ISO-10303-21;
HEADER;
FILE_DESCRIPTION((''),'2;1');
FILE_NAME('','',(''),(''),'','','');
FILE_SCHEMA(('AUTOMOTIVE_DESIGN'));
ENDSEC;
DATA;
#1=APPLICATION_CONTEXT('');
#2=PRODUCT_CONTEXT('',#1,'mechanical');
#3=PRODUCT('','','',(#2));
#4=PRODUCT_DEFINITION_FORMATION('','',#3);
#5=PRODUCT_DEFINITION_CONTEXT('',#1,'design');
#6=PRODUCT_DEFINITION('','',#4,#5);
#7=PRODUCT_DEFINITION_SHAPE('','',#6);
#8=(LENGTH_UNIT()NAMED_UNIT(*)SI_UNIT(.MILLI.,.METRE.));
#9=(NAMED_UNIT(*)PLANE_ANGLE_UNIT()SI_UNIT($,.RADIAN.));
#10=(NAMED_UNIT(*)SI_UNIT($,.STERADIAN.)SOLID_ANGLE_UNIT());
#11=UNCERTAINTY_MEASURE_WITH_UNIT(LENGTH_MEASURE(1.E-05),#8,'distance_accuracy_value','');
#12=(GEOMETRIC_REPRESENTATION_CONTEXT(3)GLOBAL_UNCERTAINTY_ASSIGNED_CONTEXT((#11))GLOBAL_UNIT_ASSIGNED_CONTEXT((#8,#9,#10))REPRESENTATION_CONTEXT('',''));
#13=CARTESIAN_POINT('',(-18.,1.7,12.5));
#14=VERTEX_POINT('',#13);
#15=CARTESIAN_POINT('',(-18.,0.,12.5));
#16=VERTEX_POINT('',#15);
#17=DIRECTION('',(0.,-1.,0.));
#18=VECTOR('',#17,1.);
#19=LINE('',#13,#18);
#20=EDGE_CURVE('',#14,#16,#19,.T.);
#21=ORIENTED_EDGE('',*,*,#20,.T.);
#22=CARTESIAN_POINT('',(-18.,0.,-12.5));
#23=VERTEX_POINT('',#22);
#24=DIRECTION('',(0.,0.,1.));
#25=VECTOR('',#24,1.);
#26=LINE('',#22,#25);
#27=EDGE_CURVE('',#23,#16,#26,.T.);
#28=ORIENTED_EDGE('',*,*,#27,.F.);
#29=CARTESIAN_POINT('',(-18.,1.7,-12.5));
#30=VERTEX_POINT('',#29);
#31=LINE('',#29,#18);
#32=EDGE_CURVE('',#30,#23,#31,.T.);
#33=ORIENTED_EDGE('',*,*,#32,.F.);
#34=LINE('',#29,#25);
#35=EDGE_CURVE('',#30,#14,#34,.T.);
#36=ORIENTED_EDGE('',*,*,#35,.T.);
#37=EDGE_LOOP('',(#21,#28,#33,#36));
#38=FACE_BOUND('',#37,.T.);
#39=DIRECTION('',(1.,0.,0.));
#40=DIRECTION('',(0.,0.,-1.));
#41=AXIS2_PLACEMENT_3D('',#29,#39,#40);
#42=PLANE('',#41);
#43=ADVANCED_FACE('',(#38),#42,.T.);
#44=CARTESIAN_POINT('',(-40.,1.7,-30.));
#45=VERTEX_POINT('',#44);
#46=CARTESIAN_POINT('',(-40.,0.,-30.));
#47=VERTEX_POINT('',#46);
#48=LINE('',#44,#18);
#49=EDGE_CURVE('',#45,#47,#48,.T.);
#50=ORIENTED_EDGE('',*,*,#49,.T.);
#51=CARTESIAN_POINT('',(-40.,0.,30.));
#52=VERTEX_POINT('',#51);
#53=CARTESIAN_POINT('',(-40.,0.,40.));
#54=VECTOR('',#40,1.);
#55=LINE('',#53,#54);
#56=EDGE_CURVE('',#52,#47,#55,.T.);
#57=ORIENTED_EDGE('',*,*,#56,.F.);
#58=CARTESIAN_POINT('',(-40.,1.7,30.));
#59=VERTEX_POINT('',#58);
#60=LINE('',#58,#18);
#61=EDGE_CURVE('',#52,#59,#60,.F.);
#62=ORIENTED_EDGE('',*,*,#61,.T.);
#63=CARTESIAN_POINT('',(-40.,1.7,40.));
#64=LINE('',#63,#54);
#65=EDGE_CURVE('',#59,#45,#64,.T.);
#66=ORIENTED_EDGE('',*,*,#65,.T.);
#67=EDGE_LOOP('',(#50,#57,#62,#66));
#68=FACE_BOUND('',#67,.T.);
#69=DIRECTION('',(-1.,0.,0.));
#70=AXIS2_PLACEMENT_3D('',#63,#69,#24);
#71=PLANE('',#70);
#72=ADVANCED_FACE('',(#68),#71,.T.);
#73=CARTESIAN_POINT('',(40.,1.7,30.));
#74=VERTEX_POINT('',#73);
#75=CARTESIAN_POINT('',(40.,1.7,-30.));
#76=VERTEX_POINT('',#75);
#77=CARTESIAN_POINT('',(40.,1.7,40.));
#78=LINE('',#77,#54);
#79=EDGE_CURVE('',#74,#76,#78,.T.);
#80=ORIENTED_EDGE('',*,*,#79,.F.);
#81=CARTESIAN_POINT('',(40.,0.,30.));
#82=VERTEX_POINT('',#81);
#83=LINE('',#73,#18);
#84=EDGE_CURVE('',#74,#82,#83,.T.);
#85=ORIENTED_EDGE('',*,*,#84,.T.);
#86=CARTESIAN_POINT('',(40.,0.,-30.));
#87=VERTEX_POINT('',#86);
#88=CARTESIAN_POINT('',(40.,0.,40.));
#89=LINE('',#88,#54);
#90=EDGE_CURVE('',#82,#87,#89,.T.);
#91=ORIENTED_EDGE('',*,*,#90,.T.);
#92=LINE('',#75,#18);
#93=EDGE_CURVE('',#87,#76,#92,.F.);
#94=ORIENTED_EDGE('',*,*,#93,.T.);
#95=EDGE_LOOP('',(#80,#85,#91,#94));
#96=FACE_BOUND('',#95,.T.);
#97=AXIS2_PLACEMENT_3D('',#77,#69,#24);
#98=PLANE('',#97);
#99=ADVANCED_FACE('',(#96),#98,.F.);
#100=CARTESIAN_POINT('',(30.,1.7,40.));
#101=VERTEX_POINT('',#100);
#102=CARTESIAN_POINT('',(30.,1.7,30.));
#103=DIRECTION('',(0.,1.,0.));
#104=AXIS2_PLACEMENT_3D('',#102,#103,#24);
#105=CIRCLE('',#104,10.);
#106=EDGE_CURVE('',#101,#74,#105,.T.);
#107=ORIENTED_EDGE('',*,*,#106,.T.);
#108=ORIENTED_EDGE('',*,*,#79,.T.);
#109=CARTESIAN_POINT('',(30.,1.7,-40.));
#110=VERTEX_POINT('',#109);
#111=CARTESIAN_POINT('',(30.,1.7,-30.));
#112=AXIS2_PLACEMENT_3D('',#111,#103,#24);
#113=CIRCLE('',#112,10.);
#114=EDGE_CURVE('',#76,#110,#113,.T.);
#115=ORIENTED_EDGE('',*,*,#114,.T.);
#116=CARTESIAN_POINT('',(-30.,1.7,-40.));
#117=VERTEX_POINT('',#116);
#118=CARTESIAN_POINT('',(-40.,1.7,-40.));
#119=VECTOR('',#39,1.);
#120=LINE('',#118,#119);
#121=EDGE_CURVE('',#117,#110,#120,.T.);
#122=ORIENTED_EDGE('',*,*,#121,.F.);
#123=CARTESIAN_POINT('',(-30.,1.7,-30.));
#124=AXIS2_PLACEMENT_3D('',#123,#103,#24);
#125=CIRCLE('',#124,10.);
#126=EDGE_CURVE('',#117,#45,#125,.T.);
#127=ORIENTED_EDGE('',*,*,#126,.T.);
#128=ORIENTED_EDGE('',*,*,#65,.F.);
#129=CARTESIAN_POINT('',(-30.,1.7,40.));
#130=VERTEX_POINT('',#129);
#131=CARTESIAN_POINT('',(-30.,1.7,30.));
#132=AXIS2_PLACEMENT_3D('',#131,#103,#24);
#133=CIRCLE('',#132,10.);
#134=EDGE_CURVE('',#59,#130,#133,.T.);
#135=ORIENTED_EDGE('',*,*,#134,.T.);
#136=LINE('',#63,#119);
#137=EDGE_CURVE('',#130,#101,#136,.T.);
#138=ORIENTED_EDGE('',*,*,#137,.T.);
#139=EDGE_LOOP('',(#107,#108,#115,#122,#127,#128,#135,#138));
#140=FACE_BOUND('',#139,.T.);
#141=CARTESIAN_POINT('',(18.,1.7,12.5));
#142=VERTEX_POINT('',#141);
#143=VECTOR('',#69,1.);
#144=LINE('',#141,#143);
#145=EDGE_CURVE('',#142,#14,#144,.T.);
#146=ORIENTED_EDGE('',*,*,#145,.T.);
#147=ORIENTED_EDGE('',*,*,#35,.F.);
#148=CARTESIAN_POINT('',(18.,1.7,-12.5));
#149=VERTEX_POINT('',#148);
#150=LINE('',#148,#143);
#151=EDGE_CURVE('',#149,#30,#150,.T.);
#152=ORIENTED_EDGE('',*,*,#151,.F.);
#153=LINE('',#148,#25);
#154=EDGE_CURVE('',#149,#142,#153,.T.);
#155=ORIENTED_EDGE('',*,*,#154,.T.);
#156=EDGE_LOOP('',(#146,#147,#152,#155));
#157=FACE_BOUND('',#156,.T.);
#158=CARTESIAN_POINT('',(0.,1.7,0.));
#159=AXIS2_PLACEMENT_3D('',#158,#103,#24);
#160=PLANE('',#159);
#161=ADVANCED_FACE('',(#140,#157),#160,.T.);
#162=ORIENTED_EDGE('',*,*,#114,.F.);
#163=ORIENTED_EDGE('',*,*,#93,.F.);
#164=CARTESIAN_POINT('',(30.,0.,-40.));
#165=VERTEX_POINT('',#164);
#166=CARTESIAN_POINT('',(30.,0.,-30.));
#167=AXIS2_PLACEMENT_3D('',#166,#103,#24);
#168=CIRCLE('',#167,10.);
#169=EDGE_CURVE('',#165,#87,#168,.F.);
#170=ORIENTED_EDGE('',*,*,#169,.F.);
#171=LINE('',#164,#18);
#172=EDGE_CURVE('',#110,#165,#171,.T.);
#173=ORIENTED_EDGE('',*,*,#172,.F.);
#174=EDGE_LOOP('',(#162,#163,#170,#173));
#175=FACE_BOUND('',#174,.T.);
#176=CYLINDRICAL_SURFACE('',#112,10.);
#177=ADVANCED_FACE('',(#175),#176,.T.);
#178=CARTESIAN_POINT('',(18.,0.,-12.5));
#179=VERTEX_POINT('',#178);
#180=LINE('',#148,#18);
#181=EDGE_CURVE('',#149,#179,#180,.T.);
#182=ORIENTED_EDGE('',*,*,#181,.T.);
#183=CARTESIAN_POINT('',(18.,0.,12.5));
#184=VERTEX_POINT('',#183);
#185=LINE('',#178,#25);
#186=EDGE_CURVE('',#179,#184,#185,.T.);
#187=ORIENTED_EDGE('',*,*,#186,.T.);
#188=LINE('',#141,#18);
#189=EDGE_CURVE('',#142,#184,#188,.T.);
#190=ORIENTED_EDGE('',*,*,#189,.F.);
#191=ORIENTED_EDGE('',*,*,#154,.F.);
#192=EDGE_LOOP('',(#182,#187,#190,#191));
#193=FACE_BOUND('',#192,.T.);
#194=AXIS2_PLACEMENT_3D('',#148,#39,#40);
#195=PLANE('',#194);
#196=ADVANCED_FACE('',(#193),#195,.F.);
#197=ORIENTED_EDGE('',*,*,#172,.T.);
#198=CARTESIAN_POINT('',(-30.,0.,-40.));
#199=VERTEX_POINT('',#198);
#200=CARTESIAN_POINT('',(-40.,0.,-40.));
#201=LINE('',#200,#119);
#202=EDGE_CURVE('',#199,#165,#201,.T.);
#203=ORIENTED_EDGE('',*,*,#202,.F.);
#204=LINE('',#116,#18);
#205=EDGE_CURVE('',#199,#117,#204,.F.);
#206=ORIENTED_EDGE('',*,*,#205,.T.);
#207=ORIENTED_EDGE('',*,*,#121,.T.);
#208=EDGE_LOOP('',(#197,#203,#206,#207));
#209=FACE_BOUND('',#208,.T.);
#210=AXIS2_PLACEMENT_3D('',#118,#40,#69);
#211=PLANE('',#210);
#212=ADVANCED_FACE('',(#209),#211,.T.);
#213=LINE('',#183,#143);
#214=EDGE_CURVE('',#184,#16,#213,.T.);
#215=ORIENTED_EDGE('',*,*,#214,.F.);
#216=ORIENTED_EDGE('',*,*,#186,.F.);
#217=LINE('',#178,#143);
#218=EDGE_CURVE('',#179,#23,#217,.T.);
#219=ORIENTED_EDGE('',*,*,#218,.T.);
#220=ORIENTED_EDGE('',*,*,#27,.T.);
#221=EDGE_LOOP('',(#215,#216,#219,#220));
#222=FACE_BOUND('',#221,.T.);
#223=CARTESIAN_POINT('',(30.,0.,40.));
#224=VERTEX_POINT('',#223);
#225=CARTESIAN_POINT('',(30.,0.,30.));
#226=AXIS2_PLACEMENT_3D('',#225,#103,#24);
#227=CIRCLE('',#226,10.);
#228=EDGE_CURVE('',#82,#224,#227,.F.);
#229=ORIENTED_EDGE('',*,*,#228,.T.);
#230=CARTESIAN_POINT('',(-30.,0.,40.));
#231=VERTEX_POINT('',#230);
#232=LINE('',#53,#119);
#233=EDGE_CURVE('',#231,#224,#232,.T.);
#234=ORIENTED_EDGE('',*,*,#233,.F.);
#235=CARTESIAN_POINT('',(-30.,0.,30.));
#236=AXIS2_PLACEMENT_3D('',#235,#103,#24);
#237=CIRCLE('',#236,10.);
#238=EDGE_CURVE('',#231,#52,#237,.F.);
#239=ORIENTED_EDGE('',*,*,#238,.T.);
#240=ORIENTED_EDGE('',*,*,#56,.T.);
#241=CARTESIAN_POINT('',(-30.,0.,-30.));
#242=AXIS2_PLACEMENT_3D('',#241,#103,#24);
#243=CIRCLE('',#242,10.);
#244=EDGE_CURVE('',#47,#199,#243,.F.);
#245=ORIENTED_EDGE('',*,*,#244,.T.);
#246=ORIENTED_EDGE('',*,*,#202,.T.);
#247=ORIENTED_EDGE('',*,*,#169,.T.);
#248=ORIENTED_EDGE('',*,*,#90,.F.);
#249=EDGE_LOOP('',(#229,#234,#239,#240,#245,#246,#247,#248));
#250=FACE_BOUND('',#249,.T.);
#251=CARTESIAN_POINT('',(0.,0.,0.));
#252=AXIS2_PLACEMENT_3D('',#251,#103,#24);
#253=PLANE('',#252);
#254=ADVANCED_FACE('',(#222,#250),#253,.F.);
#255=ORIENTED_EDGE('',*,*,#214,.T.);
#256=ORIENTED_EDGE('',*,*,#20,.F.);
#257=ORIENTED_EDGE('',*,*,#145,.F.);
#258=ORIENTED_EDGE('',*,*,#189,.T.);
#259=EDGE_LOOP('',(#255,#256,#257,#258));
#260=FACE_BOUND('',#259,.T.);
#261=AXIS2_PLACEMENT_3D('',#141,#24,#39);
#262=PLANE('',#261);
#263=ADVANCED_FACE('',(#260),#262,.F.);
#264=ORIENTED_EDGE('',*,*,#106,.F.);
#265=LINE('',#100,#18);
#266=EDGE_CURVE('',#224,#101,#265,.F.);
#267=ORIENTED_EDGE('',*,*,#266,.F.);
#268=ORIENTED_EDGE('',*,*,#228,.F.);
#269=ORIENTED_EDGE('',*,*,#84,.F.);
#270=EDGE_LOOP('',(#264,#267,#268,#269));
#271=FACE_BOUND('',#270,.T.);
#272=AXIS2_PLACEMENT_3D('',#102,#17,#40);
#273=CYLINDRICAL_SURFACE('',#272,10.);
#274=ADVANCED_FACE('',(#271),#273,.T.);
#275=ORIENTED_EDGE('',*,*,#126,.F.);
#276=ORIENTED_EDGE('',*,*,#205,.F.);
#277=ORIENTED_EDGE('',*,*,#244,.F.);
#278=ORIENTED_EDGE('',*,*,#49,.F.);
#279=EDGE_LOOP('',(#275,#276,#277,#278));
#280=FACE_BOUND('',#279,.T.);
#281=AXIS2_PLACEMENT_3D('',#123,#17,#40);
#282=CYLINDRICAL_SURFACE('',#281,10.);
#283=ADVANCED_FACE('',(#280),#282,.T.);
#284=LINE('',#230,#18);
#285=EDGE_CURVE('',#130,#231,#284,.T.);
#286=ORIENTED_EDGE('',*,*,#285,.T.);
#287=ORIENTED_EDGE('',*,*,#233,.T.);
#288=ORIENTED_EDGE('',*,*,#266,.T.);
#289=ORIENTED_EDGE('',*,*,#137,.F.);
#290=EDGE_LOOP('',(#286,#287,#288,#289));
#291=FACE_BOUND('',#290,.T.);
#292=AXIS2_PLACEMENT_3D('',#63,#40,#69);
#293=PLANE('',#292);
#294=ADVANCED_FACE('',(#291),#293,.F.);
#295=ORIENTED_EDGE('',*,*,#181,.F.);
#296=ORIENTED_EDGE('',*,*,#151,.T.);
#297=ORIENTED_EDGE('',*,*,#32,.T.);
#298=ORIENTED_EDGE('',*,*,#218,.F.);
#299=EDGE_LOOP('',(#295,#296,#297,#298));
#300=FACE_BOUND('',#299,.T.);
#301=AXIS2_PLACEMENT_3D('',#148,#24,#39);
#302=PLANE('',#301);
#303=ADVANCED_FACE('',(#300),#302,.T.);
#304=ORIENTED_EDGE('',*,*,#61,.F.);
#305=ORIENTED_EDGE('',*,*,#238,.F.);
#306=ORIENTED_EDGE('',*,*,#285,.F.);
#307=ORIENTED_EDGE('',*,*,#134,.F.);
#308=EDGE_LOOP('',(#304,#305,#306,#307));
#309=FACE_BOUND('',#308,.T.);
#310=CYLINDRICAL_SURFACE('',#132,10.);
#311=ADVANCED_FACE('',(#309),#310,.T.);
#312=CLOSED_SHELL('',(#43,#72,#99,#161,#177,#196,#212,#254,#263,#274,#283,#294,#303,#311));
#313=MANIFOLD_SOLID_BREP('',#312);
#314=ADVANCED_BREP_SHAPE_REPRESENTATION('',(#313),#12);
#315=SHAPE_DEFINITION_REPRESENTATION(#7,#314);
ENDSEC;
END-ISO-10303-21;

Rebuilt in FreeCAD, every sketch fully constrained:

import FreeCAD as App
import Part
import Sketcher
Q = App.Units.Quantity


def edges_at(feature, points):
    """Names of the edges that pass closest to the given points."""
    edges = feature.Shape.Edges
    near = lambda p: min(range(len(edges)), key=lambda i: edges[i].distToShape(Part.Vertex(*p))[0])
    return sorted({f"Edge{near(p) + 1}" for p in points})


def add_polygon(sketch, points):
    """Adds a closed chain of lines whose ends are joined by coincident constraints."""
    first, n = sketch.GeometryCount, len(points)
    for a, b in zip(points, points[1:] + points[:1]):
        sketch.addGeometry(Part.LineSegment(App.Vector(*a, 0), App.Vector(*b, 0)), False)
    for i in range(n):
        sketch.addConstraint(Sketcher.Constraint("Coincident", first + i, 2, first + (i + 1) % n, 1))

doc = App.newDocument("Part")
body = doc.addObject("PartDesign::Body", "Body")

# Sketch on XZ plane
sketch1 = body.newObject("Sketcher::SketchObject", "Sketch")
sketch1.AttachmentSupport = (doc.getObject("XZ_Plane"), [""])
sketch1.MapMode = "FlatFace"
add_polygon(sketch1, [(-40, -40), (-40, 40), (40, 40), (40, -40)])  # lines 0-3
add_polygon(sketch1, [(18, 12), (-18, 12), (-18, -12), (18, -12)])  # lines 4-7
sketch1.addConstraint([
    Sketcher.Constraint("Vertical", 0),
    Sketcher.Constraint("Horizontal", 1),
    Sketcher.Constraint("Vertical", 2),
    Sketcher.Constraint("Horizontal", 3),
    Sketcher.Constraint("Horizontal", 4),
    Sketcher.Constraint("Vertical", 5),
    Sketcher.Constraint("Horizontal", 6),
    Sketcher.Constraint("Vertical", 7),
    Sketcher.Constraint("Symmetric", 0, 2, 2, 2, -1, 1),
    Sketcher.Constraint("Symmetric", 4, 2, 6, 2, -1, 1),
    Sketcher.Constraint("Equal", 3, 0),
    Sketcher.Constraint("DistanceX", 1, 1, 1, 2, Q("80 mm")),
    Sketcher.Constraint("DistanceX", 4, 2, 4, 1, Q("36 mm")),
    Sketcher.Constraint("DistanceY", 5, 2, 5, 1, Q("25 mm")),
])
pad1 = body.newObject("PartDesign::Pad", "Pad")
pad1.Profile = sketch1
pad1.Length = 1.7
pad1.Reversed = True
doc.recompute()

fillet = body.newObject("PartDesign::Fillet", "Fillet")
fillet.Base = (pad1, edges_at(pad1, [
    (-40, 0.85, -40),
    (-40, 0.85, 40),
    (40, 0.85, 40),
    (40, 0.85, -40),
]))
fillet.Radius = 10

doc.recompute()
